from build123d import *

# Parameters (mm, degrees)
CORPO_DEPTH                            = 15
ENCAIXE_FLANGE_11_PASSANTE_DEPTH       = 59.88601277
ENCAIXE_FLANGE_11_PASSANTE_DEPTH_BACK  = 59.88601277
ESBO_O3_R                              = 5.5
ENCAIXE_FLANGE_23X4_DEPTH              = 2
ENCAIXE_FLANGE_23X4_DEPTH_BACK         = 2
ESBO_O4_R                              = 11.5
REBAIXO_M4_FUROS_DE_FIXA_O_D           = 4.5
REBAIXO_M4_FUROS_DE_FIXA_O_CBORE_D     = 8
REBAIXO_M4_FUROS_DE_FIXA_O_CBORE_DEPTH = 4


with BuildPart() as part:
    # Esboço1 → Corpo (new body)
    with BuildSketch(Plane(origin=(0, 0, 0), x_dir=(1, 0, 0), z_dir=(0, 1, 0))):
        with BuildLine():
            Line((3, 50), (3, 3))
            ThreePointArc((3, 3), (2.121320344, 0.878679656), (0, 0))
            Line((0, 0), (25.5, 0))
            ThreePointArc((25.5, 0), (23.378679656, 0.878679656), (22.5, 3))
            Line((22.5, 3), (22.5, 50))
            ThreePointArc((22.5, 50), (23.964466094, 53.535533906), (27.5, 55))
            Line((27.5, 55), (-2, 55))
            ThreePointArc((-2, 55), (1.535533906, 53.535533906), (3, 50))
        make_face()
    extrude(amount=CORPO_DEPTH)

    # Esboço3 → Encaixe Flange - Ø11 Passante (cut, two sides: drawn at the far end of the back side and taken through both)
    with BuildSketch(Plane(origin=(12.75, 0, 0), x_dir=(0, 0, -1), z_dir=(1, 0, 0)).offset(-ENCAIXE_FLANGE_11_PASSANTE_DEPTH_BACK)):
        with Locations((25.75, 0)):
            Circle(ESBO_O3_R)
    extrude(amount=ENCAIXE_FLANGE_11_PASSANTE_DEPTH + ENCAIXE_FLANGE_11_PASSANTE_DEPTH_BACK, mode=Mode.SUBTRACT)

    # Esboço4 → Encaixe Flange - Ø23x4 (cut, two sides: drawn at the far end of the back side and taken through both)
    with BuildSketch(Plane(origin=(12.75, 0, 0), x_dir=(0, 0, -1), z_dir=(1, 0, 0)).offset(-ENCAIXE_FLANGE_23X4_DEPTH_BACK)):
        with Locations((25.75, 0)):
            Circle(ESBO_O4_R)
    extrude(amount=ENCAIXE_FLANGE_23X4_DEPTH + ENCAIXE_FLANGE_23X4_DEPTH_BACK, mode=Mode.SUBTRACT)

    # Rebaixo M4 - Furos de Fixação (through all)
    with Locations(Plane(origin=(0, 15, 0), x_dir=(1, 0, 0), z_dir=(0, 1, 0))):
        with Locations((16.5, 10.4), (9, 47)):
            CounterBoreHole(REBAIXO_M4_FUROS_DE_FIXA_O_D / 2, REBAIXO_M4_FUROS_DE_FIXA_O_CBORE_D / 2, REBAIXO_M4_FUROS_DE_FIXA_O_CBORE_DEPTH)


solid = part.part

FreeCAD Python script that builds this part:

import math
import FreeCAD as App
import Part
import Sketcher

V = App.Vector
Q = App.Units.Quantity

doc = App.newDocument("Part")
body = doc.addObject("PartDesign::Body", "Body")

# Sketch on XZ plane
sketch1 = doc.addObject("Sketcher::SketchObject", "Sketch")
body.addObject(sketch1)
sketch1.AttachmentSupport = (doc.XZ_Plane, [""])
sketch1.MapMode = "FlatFace"
sketch1.addGeometry([
    Part.LineSegment(V(3, -50, 0), V(3, -3, 0)),  # 0
    Part.ArcOfCircle(Part.Circle(V(0, -3, 0), V(0, 0, 1), 3), math.radians(0), math.radians(90)),  # 1
    Part.LineSegment(V(0, 0, 0), V(25.5, 0, 0)),  # 2
    Part.ArcOfCircle(Part.Circle(V(25.5, -3, 0), V(0, 0, 1), 3), math.radians(90), math.radians(180)),  # 3
    Part.LineSegment(V(22.5, -3, 0), V(22.5, -50, 0)),  # 4
    Part.ArcOfCircle(Part.Circle(V(27.5, -50, 0), V(0, 0, 1), 5), math.radians(180), math.radians(270)),  # 5
    Part.LineSegment(V(27.5, -55, 0), V(-2, -55, 0)),  # 6
    Part.ArcOfCircle(Part.Circle(V(-2, -50, 0), V(0, 0, 1), 5), math.radians(-90), math.radians(0)),  # 7
], False)
sketch1.addConstraint([
    Sketcher.Constraint("Tangent", 0, 2, 1, 1),
    Sketcher.Constraint("Tangent", 1, 2, 2, 1),
    Sketcher.Constraint("Tangent", 2, 2, 3, 1),
    Sketcher.Constraint("Tangent", 3, 2, 4, 1),
    Sketcher.Constraint("Tangent", 4, 2, 5, 1),
    Sketcher.Constraint("Tangent", 5, 2, 6, 1),
    Sketcher.Constraint("Tangent", 6, 2, 7, 1),
    Sketcher.Constraint("Tangent", 7, 2, 0, 1),
    Sketcher.Constraint("Vertical", 0),
    Sketcher.Constraint("Horizontal", 2),
    Sketcher.Constraint("Vertical", 4),
    Sketcher.Constraint("Horizontal", 6),
    Sketcher.Constraint("Coincident", 1, 2, -1, 1),
    Sketcher.Constraint("Equal", 1, 3),
    Sketcher.Constraint("Equal", 5, 7),
    Sketcher.Constraint("Radius", 1, Q("3 mm")),
    Sketcher.Constraint("Radius", 5, Q("5 mm")),
    Sketcher.Constraint("DistanceY", 0, 1, 0, 2, Q("47 mm")),
    Sketcher.Constraint("DistanceX", 2, 1, 2, 2, Q("25.5 mm")),
])
pad1 = doc.addObject("PartDesign::Pad", "Pad")
body.addObject(pad1)
pad1.Profile = sketch1
pad1.Length = 15
pad1.Reversed = True

# Sketch on YZ plane
sketch2 = doc.addObject("Sketcher::SketchObject", "Sketch001")
body.addObject(sketch2)
sketch2.AttachmentSupport = (doc.YZ_Plane, [""])
sketch2.MapMode = "FlatFace"
sketch2.AttachmentOffset = App.Placement(V(0, 0, 12.75), App.Rotation())
sketch2.addGeometry(Part.Circle(V(0, -26, 0), V(0, 0, 1), 6), False)
sketch2.addConstraint([
    Sketcher.Constraint("PointOnObject", 0, 3, -2),
    Sketcher.Constraint("Diameter", 0, Q("11 mm")),
    Sketcher.Constraint("DistanceY", 0, 3, -1, 1, Q("25.75 mm")),
])
pocket1 = doc.addObject("PartDesign::Pocket", "Pocket")
body.addObject(pocket1)
pocket1.Profile = sketch2
pocket1.Type = "ThroughAll"
pocket1.Midplane = True

# Sketch on YZ plane
sketch3 = doc.addObject("Sketcher::SketchObject", "Sketch002")
body.addObject(sketch3)
sketch3.AttachmentSupport = (doc.YZ_Plane, [""])
sketch3.MapMode = "FlatFace"
sketch3.AttachmentOffset = App.Placement(V(0, 0, 12.75), App.Rotation())
sketch3.addGeometry(Part.Circle(V(0, -26, 0), V(0, 0, 1), 12), False)
sketch3.addConstraint([
    Sketcher.Constraint("PointOnObject", 0, 3, -2),
    Sketcher.Constraint("Diameter", 0, Q("23 mm")),
    Sketcher.Constraint("DistanceY", 0, 3, -1, 1, Q("25.75 mm")),
])
pocket2 = doc.addObject("PartDesign::Pocket", "Pocket001")
body.addObject(pocket2)
pocket2.Profile = sketch3
pocket2.Type = "TwoLengths"
pocket2.Length = 2
pocket2.Length2 = 2
pocket2.Reversed = True

# Sketch on XZ plane
sketch4 = doc.addObject("Sketcher::SketchObject", "Sketch003")
body.addObject(sketch4)
sketch4.AttachmentSupport = (doc.XZ_Plane, [""])
sketch4.MapMode = "FlatFace"
sketch4.AttachmentOffset = App.Placement(V(0, 0, -15), App.Rotation())
sketch4.addGeometry([
    Part.Circle(V(16.5, -10.4, 0), V(0, 0, 1), 2.2),
    Part.Circle(V(9, -47, 0), V(0, 0, 1), 2.2),
], False)
sketch4.addConstraint([
    Sketcher.Constraint("Equal", 0, 1),
    Sketcher.Constraint("Diameter", 0, Q("4.5 mm")),
    Sketcher.Constraint("DistanceX", -1, 1, 1, 3, Q("9 mm")),
    Sketcher.Constraint("DistanceY", 1, 3, -1, 1, Q("47 mm")),
    Sketcher.Constraint("DistanceX", -1, 1, 0, 3, Q("16.5 mm")),
    Sketcher.Constraint("DistanceY", 0, 3, -1, 1, Q("10.4 mm")),
])
doc.recompute()
hole = doc.addObject("PartDesign::Hole", "Hole")
body.addObject(hole)
hole.Profile = sketch4
hole.ThreadType = "None"
hole.Diameter = 4.5
hole.DepthType = "ThroughAll"
hole.HoleCutType = "Counterbore"
hole.HoleCutDiameter = 8
hole.HoleCutDepth = 4
hole.Reversed = True

doc.recompute()
